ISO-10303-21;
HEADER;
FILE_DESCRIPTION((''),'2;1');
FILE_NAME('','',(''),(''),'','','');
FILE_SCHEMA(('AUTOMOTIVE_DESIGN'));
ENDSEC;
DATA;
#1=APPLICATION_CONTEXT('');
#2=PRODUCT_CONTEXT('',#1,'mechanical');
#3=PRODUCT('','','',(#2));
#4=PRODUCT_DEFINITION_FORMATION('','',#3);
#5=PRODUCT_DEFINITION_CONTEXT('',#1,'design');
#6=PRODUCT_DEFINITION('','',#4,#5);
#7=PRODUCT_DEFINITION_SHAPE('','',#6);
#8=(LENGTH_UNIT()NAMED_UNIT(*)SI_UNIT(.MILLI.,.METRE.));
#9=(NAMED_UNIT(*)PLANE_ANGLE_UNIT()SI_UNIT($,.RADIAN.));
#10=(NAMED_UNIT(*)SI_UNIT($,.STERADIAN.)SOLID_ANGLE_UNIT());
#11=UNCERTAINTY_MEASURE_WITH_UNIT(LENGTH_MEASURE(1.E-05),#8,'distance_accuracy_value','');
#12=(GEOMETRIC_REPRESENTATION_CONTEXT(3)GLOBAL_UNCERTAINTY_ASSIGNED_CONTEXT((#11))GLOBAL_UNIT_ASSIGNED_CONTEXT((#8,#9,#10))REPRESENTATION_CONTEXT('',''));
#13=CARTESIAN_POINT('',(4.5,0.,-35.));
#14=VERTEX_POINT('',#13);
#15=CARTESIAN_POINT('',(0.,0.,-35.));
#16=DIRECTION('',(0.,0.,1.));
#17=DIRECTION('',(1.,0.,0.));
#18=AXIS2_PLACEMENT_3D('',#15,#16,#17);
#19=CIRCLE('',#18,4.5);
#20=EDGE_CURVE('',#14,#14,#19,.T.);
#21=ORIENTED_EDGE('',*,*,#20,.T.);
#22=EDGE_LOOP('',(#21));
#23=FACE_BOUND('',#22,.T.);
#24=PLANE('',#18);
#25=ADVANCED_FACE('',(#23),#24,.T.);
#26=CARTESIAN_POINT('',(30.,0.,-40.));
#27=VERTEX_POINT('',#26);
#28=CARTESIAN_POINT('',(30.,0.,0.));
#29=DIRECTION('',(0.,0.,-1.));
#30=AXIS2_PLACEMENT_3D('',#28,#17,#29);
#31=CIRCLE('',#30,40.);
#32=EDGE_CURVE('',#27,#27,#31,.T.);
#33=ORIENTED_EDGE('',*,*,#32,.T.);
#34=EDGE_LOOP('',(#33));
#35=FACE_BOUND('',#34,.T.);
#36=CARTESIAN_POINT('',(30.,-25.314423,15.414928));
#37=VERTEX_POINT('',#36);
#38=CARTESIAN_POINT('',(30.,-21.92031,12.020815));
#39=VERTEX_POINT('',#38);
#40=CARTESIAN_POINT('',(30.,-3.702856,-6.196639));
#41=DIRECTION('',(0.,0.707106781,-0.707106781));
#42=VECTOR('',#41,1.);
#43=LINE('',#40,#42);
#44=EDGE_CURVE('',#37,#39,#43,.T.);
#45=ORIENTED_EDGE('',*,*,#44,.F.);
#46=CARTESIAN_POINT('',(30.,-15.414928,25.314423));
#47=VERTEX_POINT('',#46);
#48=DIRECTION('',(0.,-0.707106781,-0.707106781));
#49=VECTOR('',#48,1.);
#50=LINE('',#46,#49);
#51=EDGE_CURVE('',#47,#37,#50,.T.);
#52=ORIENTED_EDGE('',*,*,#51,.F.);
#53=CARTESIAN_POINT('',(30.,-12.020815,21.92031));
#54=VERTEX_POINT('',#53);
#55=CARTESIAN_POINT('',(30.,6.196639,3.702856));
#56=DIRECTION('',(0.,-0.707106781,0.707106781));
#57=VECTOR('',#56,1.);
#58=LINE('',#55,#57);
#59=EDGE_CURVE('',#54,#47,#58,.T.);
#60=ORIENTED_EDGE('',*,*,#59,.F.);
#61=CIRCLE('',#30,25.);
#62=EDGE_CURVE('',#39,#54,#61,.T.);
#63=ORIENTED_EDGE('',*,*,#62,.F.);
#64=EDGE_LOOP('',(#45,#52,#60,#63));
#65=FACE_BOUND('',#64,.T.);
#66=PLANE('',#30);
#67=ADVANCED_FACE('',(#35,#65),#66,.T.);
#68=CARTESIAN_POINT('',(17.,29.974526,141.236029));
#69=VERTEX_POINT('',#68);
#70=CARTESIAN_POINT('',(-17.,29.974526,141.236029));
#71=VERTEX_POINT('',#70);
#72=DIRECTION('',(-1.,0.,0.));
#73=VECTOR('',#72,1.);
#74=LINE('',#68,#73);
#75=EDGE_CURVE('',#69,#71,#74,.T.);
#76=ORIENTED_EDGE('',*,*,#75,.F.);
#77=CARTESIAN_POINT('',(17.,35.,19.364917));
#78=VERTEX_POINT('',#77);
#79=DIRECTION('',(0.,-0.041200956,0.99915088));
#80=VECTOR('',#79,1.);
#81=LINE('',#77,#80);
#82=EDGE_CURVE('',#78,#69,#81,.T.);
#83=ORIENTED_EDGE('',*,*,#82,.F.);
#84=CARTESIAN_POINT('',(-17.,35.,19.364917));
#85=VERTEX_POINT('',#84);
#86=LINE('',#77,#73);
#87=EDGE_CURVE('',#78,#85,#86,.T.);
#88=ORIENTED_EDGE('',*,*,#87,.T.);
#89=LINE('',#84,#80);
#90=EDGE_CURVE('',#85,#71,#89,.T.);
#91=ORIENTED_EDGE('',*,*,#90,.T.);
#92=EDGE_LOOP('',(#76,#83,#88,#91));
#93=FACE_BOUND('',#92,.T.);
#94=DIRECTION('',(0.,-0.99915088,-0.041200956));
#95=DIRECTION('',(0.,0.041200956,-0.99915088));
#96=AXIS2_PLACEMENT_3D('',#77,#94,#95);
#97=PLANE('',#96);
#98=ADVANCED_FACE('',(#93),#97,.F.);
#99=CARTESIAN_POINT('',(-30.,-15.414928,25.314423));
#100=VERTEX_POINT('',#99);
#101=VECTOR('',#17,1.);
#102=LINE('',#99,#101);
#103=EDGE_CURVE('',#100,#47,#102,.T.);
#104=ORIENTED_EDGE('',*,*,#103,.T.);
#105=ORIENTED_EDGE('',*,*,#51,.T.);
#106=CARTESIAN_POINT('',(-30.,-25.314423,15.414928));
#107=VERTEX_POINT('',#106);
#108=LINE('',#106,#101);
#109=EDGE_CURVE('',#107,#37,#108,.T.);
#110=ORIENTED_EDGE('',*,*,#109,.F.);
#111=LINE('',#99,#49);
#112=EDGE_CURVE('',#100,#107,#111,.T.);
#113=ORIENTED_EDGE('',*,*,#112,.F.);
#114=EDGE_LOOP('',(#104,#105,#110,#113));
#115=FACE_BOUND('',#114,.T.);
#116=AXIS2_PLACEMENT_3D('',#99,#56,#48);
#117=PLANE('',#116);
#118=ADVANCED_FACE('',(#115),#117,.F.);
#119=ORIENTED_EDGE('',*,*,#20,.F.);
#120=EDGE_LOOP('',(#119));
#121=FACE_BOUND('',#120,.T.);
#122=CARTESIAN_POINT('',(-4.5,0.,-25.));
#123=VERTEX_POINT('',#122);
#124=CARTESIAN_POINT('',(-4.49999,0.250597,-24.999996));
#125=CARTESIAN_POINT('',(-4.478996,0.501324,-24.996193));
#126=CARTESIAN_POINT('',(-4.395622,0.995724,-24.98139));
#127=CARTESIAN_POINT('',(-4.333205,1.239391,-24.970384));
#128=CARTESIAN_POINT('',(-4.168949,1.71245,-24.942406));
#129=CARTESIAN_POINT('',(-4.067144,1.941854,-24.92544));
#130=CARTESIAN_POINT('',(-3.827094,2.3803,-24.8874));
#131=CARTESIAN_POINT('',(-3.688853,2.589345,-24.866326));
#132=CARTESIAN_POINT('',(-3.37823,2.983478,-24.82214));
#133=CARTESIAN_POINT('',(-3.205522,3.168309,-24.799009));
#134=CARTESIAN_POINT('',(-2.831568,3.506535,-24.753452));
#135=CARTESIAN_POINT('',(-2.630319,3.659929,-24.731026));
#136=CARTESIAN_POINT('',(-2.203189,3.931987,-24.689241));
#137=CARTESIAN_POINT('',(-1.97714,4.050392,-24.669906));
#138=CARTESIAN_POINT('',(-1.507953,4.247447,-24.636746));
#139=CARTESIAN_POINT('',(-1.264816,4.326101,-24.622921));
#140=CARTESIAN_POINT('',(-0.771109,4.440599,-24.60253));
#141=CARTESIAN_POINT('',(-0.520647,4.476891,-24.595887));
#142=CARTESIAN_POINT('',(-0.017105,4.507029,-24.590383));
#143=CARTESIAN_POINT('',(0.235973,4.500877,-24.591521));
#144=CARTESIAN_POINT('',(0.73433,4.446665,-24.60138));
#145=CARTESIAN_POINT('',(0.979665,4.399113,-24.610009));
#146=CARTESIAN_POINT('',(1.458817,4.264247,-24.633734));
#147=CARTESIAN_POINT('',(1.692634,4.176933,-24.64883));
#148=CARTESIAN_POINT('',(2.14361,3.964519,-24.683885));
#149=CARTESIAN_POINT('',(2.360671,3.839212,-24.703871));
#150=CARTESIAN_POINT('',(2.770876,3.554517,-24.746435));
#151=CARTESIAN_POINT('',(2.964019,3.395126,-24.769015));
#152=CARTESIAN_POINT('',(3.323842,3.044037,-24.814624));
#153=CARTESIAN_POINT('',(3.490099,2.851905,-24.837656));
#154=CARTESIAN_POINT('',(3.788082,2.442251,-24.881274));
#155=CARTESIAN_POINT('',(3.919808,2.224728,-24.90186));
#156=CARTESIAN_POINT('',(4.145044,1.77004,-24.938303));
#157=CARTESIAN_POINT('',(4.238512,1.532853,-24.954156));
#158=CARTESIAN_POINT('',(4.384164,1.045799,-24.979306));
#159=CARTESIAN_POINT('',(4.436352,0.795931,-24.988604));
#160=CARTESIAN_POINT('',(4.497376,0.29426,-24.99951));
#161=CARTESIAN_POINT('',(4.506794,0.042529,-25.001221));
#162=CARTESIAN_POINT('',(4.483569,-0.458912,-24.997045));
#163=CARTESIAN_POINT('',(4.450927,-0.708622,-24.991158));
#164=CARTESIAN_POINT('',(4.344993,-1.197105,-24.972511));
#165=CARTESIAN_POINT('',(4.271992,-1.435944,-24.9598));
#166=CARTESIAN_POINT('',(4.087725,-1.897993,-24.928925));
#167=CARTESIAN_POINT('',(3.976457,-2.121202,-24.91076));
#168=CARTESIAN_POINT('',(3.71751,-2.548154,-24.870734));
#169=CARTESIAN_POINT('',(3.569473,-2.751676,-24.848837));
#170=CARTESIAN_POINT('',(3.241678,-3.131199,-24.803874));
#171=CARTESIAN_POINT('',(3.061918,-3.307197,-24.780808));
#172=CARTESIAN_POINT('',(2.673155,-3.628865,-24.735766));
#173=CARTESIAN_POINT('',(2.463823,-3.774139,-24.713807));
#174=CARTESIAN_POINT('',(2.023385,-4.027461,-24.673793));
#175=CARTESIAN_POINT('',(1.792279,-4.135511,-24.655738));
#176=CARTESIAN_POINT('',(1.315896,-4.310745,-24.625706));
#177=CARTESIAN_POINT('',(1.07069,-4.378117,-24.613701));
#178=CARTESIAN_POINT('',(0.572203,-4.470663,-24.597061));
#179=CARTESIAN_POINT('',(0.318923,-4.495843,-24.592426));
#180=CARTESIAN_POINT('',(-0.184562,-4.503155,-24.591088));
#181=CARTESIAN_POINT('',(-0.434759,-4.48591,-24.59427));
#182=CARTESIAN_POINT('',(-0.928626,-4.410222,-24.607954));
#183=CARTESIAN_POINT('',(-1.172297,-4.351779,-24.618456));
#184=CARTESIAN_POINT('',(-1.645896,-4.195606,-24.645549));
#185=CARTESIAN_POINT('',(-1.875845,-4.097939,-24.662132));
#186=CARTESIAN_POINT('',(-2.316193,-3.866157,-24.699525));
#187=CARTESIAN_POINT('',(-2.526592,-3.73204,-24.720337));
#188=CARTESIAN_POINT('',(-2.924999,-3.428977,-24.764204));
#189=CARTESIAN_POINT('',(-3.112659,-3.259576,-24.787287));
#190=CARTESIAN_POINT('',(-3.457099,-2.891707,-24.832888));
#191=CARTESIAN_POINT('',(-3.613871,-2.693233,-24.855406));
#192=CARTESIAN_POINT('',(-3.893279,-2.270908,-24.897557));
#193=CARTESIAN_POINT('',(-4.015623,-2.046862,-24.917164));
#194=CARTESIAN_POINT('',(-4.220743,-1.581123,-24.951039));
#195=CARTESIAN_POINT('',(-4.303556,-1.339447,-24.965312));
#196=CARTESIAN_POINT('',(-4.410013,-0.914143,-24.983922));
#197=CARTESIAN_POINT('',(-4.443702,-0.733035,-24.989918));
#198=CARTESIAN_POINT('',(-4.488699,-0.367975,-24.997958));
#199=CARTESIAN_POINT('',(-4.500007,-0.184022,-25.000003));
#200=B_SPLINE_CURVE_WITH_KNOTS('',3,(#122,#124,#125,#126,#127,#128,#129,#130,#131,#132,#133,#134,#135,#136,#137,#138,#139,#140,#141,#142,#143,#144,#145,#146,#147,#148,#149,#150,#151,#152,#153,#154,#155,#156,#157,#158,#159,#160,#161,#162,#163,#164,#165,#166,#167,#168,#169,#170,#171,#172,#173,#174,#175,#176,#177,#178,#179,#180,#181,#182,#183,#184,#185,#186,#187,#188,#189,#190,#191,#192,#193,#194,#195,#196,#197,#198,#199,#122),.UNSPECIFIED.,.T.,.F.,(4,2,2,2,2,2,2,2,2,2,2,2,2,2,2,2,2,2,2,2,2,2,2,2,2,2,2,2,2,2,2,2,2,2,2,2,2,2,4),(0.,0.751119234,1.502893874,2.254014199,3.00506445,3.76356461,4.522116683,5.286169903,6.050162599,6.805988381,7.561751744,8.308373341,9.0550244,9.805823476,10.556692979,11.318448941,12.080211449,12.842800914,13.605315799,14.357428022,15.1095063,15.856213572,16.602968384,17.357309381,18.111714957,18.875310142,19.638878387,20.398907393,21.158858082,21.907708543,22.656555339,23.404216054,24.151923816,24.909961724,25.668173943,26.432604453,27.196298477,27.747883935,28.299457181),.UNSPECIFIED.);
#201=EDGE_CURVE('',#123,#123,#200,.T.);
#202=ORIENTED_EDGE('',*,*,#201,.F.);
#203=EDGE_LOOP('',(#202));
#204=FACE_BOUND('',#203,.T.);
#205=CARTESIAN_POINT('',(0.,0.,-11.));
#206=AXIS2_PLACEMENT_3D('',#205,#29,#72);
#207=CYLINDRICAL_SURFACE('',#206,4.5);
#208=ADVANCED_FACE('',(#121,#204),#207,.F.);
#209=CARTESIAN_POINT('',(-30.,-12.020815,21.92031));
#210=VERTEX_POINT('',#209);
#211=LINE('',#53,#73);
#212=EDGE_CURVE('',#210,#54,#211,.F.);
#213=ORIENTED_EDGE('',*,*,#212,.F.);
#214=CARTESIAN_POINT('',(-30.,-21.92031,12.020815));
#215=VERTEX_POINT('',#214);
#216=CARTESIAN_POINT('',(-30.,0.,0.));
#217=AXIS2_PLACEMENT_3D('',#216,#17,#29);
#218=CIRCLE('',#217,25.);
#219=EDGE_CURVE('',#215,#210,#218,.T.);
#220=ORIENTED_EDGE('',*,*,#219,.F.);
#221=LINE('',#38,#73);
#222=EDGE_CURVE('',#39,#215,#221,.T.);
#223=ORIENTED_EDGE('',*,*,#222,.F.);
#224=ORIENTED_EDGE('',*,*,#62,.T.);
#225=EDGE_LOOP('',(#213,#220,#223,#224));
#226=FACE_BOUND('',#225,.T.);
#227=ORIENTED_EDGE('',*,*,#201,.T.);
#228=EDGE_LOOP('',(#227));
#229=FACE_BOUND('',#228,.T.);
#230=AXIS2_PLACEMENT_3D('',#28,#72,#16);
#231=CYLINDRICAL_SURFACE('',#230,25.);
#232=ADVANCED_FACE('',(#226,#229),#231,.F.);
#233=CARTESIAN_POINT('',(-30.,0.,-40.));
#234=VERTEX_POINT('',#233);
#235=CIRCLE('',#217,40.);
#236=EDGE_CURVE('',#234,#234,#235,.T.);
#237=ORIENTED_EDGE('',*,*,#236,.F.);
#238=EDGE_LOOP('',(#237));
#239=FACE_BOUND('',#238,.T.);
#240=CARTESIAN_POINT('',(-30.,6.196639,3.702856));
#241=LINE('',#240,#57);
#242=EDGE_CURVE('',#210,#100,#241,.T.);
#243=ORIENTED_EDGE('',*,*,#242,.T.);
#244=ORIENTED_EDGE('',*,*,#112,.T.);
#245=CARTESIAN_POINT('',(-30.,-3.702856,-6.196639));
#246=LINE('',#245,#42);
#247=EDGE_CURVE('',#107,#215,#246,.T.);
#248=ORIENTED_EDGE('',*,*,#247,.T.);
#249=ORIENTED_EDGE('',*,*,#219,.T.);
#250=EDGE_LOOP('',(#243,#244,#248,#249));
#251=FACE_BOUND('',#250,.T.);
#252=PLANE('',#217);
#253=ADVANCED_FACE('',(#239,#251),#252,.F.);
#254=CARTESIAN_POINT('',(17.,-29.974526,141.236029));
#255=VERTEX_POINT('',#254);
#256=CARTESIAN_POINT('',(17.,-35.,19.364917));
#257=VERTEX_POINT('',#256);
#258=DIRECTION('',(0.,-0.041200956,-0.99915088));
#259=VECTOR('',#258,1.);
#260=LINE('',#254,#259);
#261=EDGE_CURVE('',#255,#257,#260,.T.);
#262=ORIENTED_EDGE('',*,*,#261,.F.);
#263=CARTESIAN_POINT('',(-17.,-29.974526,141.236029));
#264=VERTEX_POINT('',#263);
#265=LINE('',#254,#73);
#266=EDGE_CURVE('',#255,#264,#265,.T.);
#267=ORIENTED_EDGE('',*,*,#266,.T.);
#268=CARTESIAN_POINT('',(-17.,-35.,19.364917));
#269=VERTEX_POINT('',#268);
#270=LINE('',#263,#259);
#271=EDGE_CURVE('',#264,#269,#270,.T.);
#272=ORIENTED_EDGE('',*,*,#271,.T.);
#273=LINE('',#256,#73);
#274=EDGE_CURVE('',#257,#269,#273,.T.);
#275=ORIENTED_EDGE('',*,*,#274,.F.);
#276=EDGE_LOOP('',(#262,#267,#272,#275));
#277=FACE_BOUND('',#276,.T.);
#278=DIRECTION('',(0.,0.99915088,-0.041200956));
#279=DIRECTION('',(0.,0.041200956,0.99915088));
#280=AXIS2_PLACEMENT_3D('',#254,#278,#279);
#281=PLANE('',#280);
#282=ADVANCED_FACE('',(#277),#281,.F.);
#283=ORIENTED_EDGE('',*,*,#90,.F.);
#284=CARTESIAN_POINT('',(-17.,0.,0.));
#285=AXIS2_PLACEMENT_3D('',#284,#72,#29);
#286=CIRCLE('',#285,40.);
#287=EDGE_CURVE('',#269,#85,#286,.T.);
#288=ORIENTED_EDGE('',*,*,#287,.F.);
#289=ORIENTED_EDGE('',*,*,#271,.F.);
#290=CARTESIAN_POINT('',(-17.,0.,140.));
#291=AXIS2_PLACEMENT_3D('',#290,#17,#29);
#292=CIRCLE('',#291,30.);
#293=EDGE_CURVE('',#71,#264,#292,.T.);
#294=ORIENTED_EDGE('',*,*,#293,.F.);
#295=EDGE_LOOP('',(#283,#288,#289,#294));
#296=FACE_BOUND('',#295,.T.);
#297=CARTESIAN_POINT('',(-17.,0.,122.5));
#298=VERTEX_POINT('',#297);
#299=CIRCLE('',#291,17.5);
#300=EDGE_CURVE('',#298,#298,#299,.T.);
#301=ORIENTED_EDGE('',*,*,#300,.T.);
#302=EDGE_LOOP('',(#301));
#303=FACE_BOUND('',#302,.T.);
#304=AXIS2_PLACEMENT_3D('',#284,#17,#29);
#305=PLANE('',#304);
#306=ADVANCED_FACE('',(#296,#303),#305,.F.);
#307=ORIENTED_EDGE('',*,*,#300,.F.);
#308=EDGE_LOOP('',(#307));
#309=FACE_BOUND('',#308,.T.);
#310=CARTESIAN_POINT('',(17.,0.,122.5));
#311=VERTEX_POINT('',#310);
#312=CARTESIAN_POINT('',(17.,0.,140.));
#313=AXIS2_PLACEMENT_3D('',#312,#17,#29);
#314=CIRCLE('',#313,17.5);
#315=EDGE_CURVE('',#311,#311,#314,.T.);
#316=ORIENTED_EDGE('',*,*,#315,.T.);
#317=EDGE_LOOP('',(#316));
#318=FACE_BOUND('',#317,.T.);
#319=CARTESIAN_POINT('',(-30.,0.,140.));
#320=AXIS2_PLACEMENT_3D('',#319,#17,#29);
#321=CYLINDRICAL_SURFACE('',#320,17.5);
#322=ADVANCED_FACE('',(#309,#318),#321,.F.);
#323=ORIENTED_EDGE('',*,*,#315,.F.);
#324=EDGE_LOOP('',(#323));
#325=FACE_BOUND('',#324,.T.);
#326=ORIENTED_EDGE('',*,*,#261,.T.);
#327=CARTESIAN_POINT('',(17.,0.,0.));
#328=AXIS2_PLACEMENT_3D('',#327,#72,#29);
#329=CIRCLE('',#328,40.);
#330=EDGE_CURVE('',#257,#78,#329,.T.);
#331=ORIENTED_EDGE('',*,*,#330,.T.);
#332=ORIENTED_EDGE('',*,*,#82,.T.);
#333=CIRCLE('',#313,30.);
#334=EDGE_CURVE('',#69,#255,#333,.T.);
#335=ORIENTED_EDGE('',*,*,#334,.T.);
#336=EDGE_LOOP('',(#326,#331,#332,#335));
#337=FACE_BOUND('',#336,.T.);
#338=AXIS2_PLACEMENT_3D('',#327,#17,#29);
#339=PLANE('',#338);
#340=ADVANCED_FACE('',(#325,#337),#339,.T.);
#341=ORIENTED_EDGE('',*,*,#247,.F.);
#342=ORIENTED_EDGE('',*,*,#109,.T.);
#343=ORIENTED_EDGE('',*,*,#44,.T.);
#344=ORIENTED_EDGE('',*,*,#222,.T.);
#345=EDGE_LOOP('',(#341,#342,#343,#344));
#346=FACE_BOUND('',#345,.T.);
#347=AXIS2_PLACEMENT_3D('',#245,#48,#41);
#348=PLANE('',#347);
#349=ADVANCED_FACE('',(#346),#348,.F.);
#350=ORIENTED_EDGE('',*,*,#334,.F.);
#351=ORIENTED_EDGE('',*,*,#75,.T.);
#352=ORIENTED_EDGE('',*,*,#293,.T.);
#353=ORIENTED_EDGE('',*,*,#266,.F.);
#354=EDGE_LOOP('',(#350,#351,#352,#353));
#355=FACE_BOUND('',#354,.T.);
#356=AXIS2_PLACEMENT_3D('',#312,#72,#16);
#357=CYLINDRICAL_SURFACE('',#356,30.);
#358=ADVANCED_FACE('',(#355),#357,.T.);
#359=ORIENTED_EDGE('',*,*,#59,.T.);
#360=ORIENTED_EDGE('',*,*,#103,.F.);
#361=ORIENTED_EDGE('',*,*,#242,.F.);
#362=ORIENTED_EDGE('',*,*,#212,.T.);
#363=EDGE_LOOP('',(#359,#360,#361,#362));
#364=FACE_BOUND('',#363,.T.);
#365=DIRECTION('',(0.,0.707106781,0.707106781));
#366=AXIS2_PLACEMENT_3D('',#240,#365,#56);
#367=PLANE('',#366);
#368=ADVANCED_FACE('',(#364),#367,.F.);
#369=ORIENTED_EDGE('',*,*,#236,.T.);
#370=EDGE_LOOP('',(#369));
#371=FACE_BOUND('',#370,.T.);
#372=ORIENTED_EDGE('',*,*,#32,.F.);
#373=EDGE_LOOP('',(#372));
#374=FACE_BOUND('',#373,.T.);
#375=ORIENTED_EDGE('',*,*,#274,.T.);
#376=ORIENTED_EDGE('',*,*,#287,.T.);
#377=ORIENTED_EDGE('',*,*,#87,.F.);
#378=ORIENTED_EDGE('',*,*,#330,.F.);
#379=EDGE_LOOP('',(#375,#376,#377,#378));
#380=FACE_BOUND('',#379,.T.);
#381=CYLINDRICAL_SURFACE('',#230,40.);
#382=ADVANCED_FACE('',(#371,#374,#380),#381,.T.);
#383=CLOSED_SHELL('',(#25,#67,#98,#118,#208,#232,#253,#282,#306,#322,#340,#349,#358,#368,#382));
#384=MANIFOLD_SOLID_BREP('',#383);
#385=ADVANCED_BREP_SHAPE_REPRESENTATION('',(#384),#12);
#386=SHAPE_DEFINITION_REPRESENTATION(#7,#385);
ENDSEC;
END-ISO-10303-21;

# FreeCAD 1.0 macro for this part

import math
import FreeCAD as App
import Part
import Sketcher
from FreeCAD import Vector
Q = App.Units.Quantity


def add_polygon(sketch, points):
    """Adds a closed chain of lines whose ends are joined by coincident constraints."""
    first, n = sketch.GeometryCount, len(points)
    for a, b in zip(points, points[1:] + points[:1]):
        sketch.addGeometry(Part.LineSegment(App.Vector(*a, 0), App.Vector(*b, 0)), False)
    for i in range(n):
        sketch.addConstraint(Sketcher.Constraint("Coincident", first + i, 2, first + (i + 1) % n, 1))

doc = App.newDocument("Part")
body = doc.addObject("PartDesign::Body", "Body")

# Sketch on YZ plane
sketch1 = doc.addObject("Sketcher::SketchObject", "Sketch")
body.addObject(sketch1)
sketch1.AttachmentSupport = (doc.YZ_Plane, [""])
sketch1.MapMode = "FlatFace"
sketch1.addGeometry([
    Part.Circle(Vector(0, 0, 0), Vector(0, 0, 1), 40),
    Part.Circle(Vector(0, 0, 0), Vector(0, 0, 1), 25),
], False)
sketch1.addConstraint([
    Sketcher.Constraint("Coincident", 0, 3, -1, 1),
    Sketcher.Constraint("Coincident", 1, 3, -1, 1),
    Sketcher.Constraint("Diameter", 0, Q("80 mm")),
    Sketcher.Constraint("Diameter", 1, Q("50 mm")),
])
pad1 = doc.addObject("PartDesign::Pad", "Pad")
body.addObject(pad1)
pad1.Profile = sketch1
pad1.Length = 60
pad1.Midplane = True

# Sketch on YZ plane
sketch2 = doc.addObject("Sketcher::SketchObject", "Sketch001")
body.addObject(sketch2)
sketch2.AttachmentSupport = (doc.YZ_Plane, [""])
sketch2.MapMode = "FlatFace"
sketch2.addGeometry([
    Part.LineSegment(Vector(35, 19.364917, 0), Vector(29.974526, 141.236029, 0)),
    Part.ArcOfCircle(Part.Circle(Vector(0, 140, 0), Vector(0, 0, 1), 30), math.radians(2.361309), math.radians(177.638691)),
    Part.LineSegment(Vector(-29.974526, 141.236029, 0), Vector(-35, 19.364917, 0)),
    Part.ArcOfCircle(Part.Circle(Vector(0, 0, 0), Vector(0, 0, 1), 40), math.radians(28.955024), math.radians(151.044976)),
], False)
sketch2.addConstraint([
    Sketcher.Constraint("Tangent", 0, 2, 1, 1),
    Sketcher.Constraint("Tangent", 1, 2, 2, 1),
    Sketcher.Constraint("Coincident", 2, 2, 3, 2),
    Sketcher.Constraint("Coincident", 3, 1, 0, 1),
    Sketcher.Constraint("Coincident", 3, 3, -1, 1),
    Sketcher.Constraint("Symmetric", 0, 2, 1, 2, -2),
    Sketcher.Constraint("Radius", 1, Q("30 mm")),
    Sketcher.Constraint("Radius", 3, Q("40 mm")),
    Sketcher.Constraint("DistanceY", -1, 1, 1, 3, Q("140 mm")),
    Sketcher.Constraint("DistanceX", 2, 2, -1, 1, Q("35 mm")),
])
pad2 = doc.addObject("PartDesign::Pad", "Pad001")
body.addObject(pad2)
pad2.Profile = sketch2
pad2.Length = 34
pad2.Midplane = True

# Sketch on YZ plane
sketch3 = doc.addObject("Sketcher::SketchObject", "Sketch002")
body.addObject(sketch3)
sketch3.AttachmentSupport = (doc.YZ_Plane, [""])
sketch3.MapMode = "FlatFace"
sketch3.AttachmentOffset = App.Placement(Vector(0, 0, 17), App.Rotation())
sketch3.addGeometry(Part.Circle(Vector(0, 140, 0), Vector(0, 0, 1), 17.5), False)
sketch3.addConstraint([
    Sketcher.Constraint("PointOnObject", 0, 3, -2),
    Sketcher.Constraint("Diameter", 0, Q("35 mm")),
    Sketcher.Constraint("DistanceY", -1, 1, 0, 3, Q("140 mm")),
])
pocket1 = doc.addObject("PartDesign::Pocket", "Pocket")
body.addObject(pocket1)
pocket1.Profile = sketch3
pocket1.Type = "ThroughAll"

# Sketch on YZ plane
sketch4 = doc.addObject("Sketcher::SketchObject", "Sketch003")
body.addObject(sketch4)
sketch4.AttachmentSupport = (doc.YZ_Plane, [""])
sketch4.MapMode = "FlatFace"
sketch4.AttachmentOffset = App.Placement(Vector(0, 0, 30), App.Rotation())
add_polygon(sketch4, [(6.196639, 3.702856), (-15.414928, 25.314423), (-25.314423, 15.414928), (-3.702856, -6.196639)])  # lines 0-3
sketch4.addConstraint([
    Sketcher.Constraint("Perpendicular", 0, 1),
    Sketcher.Constraint("Perpendicular", 1, 2),
    Sketcher.Constraint("Perpendicular", 2, 3),
    Sketcher.Constraint("Angle", 0, Q("135 deg")),
    Sketcher.Constraint("Distance", 1, Q("14 mm")),
    Sketcher.Constraint("Distance", 0, Q("30.563371 mm")),
    Sketcher.Constraint("DistanceY", 2, 2, -1, 1, Q("6.196639 mm")),
    Sketcher.Constraint("DistanceX", -1, 1, 3, 2, Q("6.196639 mm")),
])
pocket2 = doc.addObject("PartDesign::Pocket", "Pocket001")
body.addObject(pocket2)
pocket2.Profile = sketch4
pocket2.Type = "ThroughAll"

# Sketch on XY plane
sketch5 = doc.addObject("Sketcher::SketchObject", "Sketch004")
body.addObject(sketch5)
sketch5.AttachmentSupport = (doc.XY_Plane, [""])
sketch5.MapMode = "FlatFace"
sketch5.AttachmentOffset = App.Placement(Vector(0, 0, -35), App.Rotation())
sketch5.addGeometry(Part.Circle(Vector(0, 0, 0), Vector(0, 0, 1), 4.5), False)
sketch5.addConstraint([
    Sketcher.Constraint("Coincident", 0, 3, -1, 1),
    Sketcher.Constraint("Diameter", 0, Q("9 mm")),
])
pocket3 = doc.addObject("PartDesign::Pocket", "Pocket002")
body.addObject(pocket3)
pocket3.Profile = sketch5
pocket3.Length = 24
pocket3.Reversed = True

doc.recompute()
